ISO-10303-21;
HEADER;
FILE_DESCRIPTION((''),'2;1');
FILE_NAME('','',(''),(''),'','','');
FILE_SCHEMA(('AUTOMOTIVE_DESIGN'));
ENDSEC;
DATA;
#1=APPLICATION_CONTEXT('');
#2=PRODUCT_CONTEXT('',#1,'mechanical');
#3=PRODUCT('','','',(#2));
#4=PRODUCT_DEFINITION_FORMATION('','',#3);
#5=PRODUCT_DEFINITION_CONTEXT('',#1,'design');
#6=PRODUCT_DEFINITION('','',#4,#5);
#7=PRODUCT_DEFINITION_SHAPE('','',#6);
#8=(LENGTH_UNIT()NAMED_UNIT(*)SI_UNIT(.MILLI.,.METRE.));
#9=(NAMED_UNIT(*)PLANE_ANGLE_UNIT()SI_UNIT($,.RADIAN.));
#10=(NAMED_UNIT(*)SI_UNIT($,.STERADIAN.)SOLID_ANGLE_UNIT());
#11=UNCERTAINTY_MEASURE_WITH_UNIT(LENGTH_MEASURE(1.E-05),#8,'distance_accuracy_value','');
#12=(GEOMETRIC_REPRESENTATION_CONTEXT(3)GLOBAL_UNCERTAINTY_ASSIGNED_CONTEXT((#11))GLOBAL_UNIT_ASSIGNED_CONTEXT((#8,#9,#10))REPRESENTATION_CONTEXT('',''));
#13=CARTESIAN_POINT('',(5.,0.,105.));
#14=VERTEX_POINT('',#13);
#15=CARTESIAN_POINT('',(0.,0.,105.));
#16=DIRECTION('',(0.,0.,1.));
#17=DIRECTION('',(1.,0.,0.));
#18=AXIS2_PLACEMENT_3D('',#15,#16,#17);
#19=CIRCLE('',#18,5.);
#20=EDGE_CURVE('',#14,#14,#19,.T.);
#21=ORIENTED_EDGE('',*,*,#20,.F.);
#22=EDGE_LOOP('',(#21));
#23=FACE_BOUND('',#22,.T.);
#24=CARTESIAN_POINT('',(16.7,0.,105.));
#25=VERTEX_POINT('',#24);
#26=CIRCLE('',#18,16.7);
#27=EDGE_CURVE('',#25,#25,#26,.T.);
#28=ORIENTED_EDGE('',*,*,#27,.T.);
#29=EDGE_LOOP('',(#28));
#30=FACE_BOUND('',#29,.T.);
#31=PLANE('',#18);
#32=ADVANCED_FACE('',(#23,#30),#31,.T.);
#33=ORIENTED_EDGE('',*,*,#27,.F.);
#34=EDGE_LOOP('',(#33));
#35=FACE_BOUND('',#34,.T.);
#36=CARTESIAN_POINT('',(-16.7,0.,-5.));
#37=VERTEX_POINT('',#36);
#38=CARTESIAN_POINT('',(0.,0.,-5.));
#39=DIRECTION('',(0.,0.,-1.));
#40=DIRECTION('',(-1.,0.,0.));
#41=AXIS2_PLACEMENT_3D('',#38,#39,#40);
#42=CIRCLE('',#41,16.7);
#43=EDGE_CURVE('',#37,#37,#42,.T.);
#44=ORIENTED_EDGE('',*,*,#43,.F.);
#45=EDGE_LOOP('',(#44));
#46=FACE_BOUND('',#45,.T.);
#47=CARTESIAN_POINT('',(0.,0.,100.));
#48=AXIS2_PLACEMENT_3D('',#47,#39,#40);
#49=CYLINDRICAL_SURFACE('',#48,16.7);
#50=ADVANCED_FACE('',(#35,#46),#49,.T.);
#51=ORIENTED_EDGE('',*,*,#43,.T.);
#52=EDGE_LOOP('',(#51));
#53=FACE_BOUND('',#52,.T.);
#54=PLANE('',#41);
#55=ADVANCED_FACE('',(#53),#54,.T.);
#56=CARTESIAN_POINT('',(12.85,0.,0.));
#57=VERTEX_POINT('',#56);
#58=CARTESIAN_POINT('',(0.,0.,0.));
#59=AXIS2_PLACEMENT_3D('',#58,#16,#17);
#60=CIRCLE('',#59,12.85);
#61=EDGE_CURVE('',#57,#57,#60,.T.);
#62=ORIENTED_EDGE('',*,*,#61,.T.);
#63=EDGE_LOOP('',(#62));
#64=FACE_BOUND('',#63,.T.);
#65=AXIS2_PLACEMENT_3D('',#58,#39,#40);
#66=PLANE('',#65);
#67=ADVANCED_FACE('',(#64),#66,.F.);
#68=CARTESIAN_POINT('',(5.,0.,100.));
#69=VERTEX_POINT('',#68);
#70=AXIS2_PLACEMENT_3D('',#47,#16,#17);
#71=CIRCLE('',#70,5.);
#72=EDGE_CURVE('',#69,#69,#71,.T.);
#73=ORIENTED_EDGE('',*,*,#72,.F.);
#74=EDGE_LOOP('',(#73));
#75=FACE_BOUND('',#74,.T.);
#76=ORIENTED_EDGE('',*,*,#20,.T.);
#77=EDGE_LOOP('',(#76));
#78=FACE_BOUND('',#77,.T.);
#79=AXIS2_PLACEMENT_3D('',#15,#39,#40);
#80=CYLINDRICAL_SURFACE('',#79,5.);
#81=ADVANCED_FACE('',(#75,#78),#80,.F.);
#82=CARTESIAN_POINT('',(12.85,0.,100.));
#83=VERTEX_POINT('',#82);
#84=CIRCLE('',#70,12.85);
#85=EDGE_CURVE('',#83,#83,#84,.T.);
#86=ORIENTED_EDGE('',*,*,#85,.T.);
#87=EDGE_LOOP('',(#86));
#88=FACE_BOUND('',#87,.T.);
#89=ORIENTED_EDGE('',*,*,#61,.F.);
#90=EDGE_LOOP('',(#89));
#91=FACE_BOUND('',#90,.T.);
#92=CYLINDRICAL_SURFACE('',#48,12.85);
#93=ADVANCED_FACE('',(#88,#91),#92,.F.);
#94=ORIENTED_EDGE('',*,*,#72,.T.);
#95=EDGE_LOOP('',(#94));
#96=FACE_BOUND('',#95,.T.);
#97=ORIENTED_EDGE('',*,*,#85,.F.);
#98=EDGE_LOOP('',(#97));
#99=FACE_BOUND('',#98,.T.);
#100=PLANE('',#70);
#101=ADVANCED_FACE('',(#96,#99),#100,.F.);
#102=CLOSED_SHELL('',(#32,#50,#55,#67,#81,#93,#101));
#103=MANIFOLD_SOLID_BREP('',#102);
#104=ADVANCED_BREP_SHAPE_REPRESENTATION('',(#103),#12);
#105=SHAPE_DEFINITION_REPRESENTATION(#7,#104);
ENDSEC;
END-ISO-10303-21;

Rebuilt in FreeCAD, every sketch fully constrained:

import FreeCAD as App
import Part
import Sketcher

V = App.Vector

doc = App.newDocument("Part")
body = doc.addObject("PartDesign::Body", "Body")

# Sketch on XY plane
sketch1 = doc.addObject("Sketcher::SketchObject", "Sketch")
body.addObject(sketch1)
sketch1.AttachmentSupport = (doc.XY_Plane, [""])
sketch1.MapMode = "FlatFace"
sketch1.addGeometry([
    Part.Circle(V(0, 0, 0), V(0, 0, 1), 17),
    Part.Circle(V(0, 0, 0), V(0, 0, 1), 13),
], False)
sketch1.addConstraint([
    Sketcher.Constraint("Coincident", 0, 3, -1, 1),
    Sketcher.Constraint("Coincident", 1, 3, -1, 1),
    Sketcher.Constraint("Diameter", 0, 33.4),
    Sketcher.Constraint("Diameter", 1, 25.7),
])
pad1 = doc.addObject("PartDesign::Pad", "Pad")
body.addObject(pad1)
pad1.Profile = sketch1
pad1.Length = 100

# Sketch on XY plane
sketch2 = doc.addObject("Sketcher::SketchObject", "Sketch001")
body.addObject(sketch2)
sketch2.AttachmentSupport = (doc.XY_Plane, [""])
sketch2.MapMode = "FlatFace"
sketch2.addGeometry(Part.Circle(V(0, 0, 0), V(0, 0, 1), 17), False)
sketch2.addConstraint([
    Sketcher.Constraint("Coincident", 0, 3, -1, 1),
    Sketcher.Constraint("Diameter", 0, 33.4),
])
pad2 = doc.addObject("PartDesign::Pad", "Pad001")
body.addObject(pad2)
pad2.Profile = sketch2
pad2.Length = 5
pad2.Reversed = True

# Sketch on XY plane
sketch3 = doc.addObject("Sketcher::SketchObject", "Sketch002")
body.addObject(sketch3)
sketch3.AttachmentSupport = (doc.XY_Plane, [""])
sketch3.MapMode = "FlatFace"
sketch3.AttachmentOffset = App.Placement(V(0, 0, 100), App.Rotation())
sketch3.addGeometry([
    Part.Circle(V(0, 0, 0), V(0, 0, 1), 17),
    Part.Circle(V(0, 0, 0), V(0, 0, 1), 5),
], False)
sketch3.addConstraint([
    Sketcher.Constraint("Coincident", 0, 3, -1, 1),
    Sketcher.Constraint("Coincident", 1, 3, -1, 1),
    Sketcher.Constraint("Diameter", 1, 10.0),
    Sketcher.Constraint("Diameter", 0, 33.4),
])
pad3 = doc.addObject("PartDesign::Pad", "Pad002")
body.addObject(pad3)
pad3.Profile = sketch3
pad3.Length = 5

doc.recompute()
